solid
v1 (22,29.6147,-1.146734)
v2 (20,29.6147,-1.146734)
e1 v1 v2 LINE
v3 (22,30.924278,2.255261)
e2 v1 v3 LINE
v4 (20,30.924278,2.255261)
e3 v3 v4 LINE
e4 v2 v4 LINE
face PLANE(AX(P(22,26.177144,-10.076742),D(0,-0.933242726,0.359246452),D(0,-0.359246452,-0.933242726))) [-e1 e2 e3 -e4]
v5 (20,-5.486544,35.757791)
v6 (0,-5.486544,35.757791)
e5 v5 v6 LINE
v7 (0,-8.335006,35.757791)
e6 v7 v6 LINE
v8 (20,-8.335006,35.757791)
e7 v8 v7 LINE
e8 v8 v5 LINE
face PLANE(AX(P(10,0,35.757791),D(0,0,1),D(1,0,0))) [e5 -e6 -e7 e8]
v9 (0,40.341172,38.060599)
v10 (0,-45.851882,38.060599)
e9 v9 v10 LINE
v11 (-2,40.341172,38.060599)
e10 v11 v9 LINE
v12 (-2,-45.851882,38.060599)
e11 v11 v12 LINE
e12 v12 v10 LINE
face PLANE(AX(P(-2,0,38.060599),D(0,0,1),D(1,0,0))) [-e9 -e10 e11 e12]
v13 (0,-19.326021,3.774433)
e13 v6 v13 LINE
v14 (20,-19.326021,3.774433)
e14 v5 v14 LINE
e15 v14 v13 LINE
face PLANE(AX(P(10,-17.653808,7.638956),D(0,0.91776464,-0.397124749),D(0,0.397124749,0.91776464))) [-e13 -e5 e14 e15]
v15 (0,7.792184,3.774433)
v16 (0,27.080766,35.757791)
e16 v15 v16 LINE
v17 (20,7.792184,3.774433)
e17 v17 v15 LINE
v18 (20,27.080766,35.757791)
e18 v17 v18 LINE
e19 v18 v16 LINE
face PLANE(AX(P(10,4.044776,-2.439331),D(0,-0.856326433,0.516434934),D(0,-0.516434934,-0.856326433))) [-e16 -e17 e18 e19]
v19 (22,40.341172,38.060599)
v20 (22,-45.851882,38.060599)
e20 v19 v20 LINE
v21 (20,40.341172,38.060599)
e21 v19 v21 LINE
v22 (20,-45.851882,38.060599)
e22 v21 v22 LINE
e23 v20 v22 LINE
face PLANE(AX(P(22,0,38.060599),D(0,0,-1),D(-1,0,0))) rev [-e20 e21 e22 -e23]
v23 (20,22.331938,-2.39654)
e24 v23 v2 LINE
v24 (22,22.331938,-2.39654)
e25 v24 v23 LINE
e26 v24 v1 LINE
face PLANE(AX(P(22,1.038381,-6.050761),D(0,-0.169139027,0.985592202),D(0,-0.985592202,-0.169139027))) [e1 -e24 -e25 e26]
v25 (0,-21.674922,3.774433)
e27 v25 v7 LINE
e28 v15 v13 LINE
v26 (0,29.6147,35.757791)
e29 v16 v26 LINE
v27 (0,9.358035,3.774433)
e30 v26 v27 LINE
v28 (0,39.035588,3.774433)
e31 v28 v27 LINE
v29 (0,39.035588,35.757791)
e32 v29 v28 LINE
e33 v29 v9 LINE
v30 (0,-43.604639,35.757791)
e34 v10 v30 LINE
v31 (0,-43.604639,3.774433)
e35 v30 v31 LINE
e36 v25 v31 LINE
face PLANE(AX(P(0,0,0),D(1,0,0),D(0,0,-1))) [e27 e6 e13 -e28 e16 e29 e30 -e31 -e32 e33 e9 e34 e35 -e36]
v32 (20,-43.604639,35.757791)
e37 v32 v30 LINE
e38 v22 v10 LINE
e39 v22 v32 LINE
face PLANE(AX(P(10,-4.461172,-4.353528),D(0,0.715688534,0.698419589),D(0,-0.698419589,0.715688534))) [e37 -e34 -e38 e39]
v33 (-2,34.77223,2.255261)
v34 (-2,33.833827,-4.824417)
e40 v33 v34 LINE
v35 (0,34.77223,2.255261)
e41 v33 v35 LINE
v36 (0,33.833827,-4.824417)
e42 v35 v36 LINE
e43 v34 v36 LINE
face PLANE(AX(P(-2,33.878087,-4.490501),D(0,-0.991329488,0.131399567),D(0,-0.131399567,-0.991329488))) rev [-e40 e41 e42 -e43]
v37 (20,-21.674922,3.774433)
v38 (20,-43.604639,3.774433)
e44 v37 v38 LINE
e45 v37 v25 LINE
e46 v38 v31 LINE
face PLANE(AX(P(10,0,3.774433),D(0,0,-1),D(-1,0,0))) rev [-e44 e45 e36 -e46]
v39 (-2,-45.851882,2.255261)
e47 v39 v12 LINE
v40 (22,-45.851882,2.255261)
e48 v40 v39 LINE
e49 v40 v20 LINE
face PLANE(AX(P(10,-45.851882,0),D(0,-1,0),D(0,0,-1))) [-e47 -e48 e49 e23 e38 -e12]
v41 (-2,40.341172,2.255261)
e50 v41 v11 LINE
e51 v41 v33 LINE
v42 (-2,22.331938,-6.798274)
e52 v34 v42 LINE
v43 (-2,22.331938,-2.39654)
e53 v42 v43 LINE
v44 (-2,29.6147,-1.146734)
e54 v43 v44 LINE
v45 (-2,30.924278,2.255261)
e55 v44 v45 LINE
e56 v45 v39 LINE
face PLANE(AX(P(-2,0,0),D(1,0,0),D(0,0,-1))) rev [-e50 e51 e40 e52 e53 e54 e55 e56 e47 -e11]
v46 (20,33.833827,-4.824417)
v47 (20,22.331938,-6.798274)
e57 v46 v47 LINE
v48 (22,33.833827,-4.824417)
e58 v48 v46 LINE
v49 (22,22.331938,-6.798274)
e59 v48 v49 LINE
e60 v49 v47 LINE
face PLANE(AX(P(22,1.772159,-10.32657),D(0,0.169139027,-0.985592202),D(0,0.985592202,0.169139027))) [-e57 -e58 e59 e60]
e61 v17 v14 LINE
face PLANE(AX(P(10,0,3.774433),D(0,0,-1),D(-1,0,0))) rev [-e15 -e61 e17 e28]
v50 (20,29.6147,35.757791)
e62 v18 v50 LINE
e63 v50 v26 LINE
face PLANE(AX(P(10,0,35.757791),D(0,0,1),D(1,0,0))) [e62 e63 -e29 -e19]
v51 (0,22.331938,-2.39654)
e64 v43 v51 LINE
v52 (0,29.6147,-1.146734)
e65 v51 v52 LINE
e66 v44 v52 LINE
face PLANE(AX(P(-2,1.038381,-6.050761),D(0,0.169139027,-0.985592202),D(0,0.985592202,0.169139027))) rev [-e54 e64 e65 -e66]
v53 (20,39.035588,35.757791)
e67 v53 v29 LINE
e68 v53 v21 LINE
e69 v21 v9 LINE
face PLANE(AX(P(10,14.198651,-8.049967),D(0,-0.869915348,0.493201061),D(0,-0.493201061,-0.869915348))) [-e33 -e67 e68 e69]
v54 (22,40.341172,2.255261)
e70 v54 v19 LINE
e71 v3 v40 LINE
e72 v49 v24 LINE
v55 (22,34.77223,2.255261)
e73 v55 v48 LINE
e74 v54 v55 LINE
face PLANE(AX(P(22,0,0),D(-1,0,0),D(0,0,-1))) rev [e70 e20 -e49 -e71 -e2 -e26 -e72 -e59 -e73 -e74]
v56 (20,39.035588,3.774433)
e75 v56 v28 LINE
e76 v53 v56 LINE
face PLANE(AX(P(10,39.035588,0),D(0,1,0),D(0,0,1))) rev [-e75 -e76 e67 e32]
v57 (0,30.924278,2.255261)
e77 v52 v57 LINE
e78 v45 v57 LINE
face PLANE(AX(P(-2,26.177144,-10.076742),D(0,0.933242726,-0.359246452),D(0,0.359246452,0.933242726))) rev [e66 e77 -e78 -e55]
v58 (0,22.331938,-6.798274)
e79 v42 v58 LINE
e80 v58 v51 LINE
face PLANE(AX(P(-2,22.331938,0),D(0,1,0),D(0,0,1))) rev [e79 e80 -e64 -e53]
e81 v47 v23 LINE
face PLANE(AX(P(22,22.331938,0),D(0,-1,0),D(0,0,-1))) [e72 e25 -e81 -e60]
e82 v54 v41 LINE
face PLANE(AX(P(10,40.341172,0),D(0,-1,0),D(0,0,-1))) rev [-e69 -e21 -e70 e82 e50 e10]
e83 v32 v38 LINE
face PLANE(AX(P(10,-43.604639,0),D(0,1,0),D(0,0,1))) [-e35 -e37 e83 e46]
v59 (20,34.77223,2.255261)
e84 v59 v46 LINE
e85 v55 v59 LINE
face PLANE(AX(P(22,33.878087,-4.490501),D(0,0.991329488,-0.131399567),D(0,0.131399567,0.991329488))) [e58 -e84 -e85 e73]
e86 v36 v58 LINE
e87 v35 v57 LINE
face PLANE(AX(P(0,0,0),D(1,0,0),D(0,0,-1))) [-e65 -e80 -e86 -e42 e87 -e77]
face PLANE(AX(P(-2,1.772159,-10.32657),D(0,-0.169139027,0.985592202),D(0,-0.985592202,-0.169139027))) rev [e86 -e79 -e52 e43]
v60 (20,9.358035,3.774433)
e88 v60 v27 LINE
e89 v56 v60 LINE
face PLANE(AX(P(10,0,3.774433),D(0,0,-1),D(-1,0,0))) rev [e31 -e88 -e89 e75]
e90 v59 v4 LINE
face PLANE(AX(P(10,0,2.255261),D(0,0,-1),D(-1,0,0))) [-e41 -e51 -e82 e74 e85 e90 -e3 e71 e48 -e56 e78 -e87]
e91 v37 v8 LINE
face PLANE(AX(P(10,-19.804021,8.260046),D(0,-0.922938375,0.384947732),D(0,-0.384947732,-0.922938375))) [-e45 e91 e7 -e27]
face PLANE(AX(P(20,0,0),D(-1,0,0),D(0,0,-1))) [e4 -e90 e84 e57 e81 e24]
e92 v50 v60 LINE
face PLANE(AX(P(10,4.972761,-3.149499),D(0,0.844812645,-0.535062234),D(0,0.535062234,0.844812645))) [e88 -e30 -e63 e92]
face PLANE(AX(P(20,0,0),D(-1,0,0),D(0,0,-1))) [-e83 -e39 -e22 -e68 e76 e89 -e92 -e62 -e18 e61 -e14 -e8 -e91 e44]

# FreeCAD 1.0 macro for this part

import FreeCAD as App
import Part
import Sketcher

V = App.Vector
Q = App.Units.Quantity

doc = App.newDocument("Part")
body = doc.addObject("PartDesign::Body", "Body")

sketch1 = body.newObject("Sketcher::SketchObject", "Sketch")
sketch1.AttachmentSupport = (doc.getObject("YZ_Plane"), [""])
sketch1.MapMode = "FlatFace"
sketch1.addGeometry([
    Part.LineSegment(V(39, 3.8, 0), V(9.4, 3.8, 0)),
    Part.LineSegment(V(9.4, 3.8, 0), V(29.6, 35.8, 0)),
    Part.LineSegment(V(29.6, 35.8, 0), V(27.1, 35.8, 0)),
    Part.LineSegment(V(27.1, 35.8, 0), V(7.8, 3.8, 0)),
    Part.LineSegment(V(7.8, 3.8, 0), V(-19.3, 3.8, 0)),
    Part.LineSegment(V(-19.3, 3.8, 0), V(-5.5, 35.8, 0)),
    Part.LineSegment(V(-5.5, 35.8, 0), V(-8.3, 35.8, 0)),
    Part.LineSegment(V(-8.3, 35.8, 0), V(-21.7, 3.8, 0)),
    Part.LineSegment(V(-21.7, 3.8, 0), V(-43.6, 3.8, 0)),
    Part.LineSegment(V(-43.6, 3.8, 0), V(-43.6, 35.8, 0)),
    Part.LineSegment(V(-43.6, 35.8, 0), V(-45.9, 38.1, 0)),
    Part.LineSegment(V(-45.9, 38.1, 0), V(-45.9, 2.3, 0)),
    Part.LineSegment(V(-45.9, 2.3, 0), V(40.3, 2.3, 0)),
    Part.LineSegment(V(40.3, 2.3, 0), V(40.3, 38.1, 0)),
    Part.LineSegment(V(40.3, 38.1, 0), V(39, 35.8, 0)),
    Part.LineSegment(V(39, 35.8, 0), V(39, 3.8, 0)),
], False)
sketch1.addConstraint([
    Sketcher.Constraint("Coincident", 0, 2, 1, 1),
    Sketcher.Constraint("Coincident", 1, 2, 2, 1),
    Sketcher.Constraint("Coincident", 2, 2, 3, 1),
    Sketcher.Constraint("Coincident", 3, 2, 4, 1),
    Sketcher.Constraint("Coincident", 4, 2, 5, 1),
    Sketcher.Constraint("Coincident", 5, 2, 6, 1),
    Sketcher.Constraint("Coincident", 6, 2, 7, 1),
    Sketcher.Constraint("Coincident", 7, 2, 8, 1),
    Sketcher.Constraint("Coincident", 8, 2, 9, 1),
    Sketcher.Constraint("Coincident", 9, 2, 10, 1),
    Sketcher.Constraint("Coincident", 10, 2, 11, 1),
    Sketcher.Constraint("Coincident", 11, 2, 12, 1),
    Sketcher.Constraint("Coincident", 12, 2, 13, 1),
    Sketcher.Constraint("Coincident", 13, 2, 14, 1),
    Sketcher.Constraint("Coincident", 14, 2, 15, 1),
    Sketcher.Constraint("Coincident", 15, 2, 0, 1),
    Sketcher.Constraint("Horizontal", 0),
    Sketcher.Constraint("Horizontal", 2),
    Sketcher.Constraint("Horizontal", 4),
    Sketcher.Constraint("Horizontal", 6),
    Sketcher.Constraint("Horizontal", 8),
    Sketcher.Constraint("Vertical", 9),
    Sketcher.Constraint("Vertical", 11),
    Sketcher.Constraint("Horizontal", 12),
    Sketcher.Constraint("Vertical", 13),
    Sketcher.Constraint("Vertical", 15),
    Sketcher.Constraint("Horizontal", 0, 2, 3, 2),
    Sketcher.Constraint("Horizontal", 2, 2, 5, 2),
    Sketcher.Constraint("Horizontal", 4, 2, 7, 2),
    Sketcher.Constraint("Horizontal", 6, 2, 9, 2),
    Sketcher.Constraint("Horizontal", 10, 2, 13, 2),
    Sketcher.Constraint("Horizontal", 9, 2, 14, 2),
    Sketcher.Constraint("DistanceX", -1, 1, 1, 2, Q("29.6147 mm")),
    Sketcher.Constraint("DistanceY", -1, 1, 10, 2, Q("38.060599 mm")),
    Sketcher.Constraint("DistanceX", 7, 2, 4, 2, Q("2.348902 mm")),
    Sketcher.Constraint("Distance", 1, Q("37.858521 mm")),
    Sketcher.Constraint("Distance", 7, Q("34.653838 mm")),
    Sketcher.Constraint("Distance", 10, Q("3.217612 mm")),
    Sketcher.Constraint("DistanceX", 0, 2, 0, 1, Q("29.677553 mm")),
    Sketcher.Constraint("DistanceX", 2, 2, 2, 1, Q("2.533934 mm")),
    Sketcher.Constraint("DistanceX", 4, 2, 4, 1, Q("27.118205 mm")),
    Sketcher.Constraint("DistanceX", 6, 2, 6, 1, Q("2.848462 mm")),
    Sketcher.Constraint("DistanceX", 8, 2, 8, 1, Q("21.929717 mm")),
    Sketcher.Constraint("DistanceX", 12, 1, 12, 2, Q("86.193054 mm")),
    Sketcher.Constraint("DistanceY", 9, 1, 9, 2, Q("31.983357 mm")),
    Sketcher.Constraint("DistanceY", 11, 2, 11, 1, Q("35.805338 mm")),
    Sketcher.Constraint("DistanceY", -1, 1, 1, 2, Q("35.757791 mm")),
    Sketcher.Constraint("DistanceX", 4, 2, -1, 1, Q("19.326021 mm")),
])
pad1 = body.newObject("PartDesign::Pad", "Pad")
pad1.Profile = sketch1
pad1.Length = 10

sketch2 = body.newObject("Sketcher::SketchObject", "Sketch001")
sketch2.AttachmentSupport = (doc.getObject("YZ_Plane"), [""])
sketch2.MapMode = "FlatFace"
sketch2.addGeometry([
    Part.LineSegment(V(-45.9, 38.1, 0), V(-45.9, 2.3, 0)),
    Part.LineSegment(V(-45.9, 2.3, 0), V(30.9, 2.3, 0)),
    Part.LineSegment(V(30.9, 2.3, 0), V(29.6, -1.1, 0)),
    Part.LineSegment(V(29.6, -1.1, 0), V(22.3, -2.4, 0)),
    Part.LineSegment(V(22.3, -2.4, 0), V(22.3, -6.8, 0)),
    Part.LineSegment(V(22.3, -6.8, 0), V(33.8, -4.8, 0)),
    Part.LineSegment(V(33.8, -4.8, 0), V(34.8, 2.3, 0)),
    Part.LineSegment(V(34.8, 2.3, 0), V(40.3, 2.3, 0)),
    Part.LineSegment(V(40.3, 2.3, 0), V(40.3, 38.1, 0)),
    Part.LineSegment(V(40.3, 38.1, 0), V(-45.9, 38.1, 0)),
], False)
sketch2.addConstraint([
    Sketcher.Constraint("Coincident", 0, 2, 1, 1),
    Sketcher.Constraint("Coincident", 1, 2, 2, 1),
    Sketcher.Constraint("Coincident", 2, 2, 3, 1),
    Sketcher.Constraint("Coincident", 3, 2, 4, 1),
    Sketcher.Constraint("Coincident", 4, 2, 5, 1),
    Sketcher.Constraint("Coincident", 5, 2, 6, 1),
    Sketcher.Constraint("Coincident", 6, 2, 7, 1),
    Sketcher.Constraint("Coincident", 7, 2, 8, 1),
    Sketcher.Constraint("Coincident", 8, 2, 9, 1),
    Sketcher.Constraint("Coincident", 9, 2, 0, 1),
    Sketcher.Constraint("Vertical", 0),
    Sketcher.Constraint("Horizontal", 1),
    Sketcher.Constraint("Vertical", 4),
    Sketcher.Constraint("Horizontal", 7),
    Sketcher.Constraint("Vertical", 8),
    Sketcher.Constraint("Horizontal", 9),
    Sketcher.Constraint("Parallel", 3, 5),
    Sketcher.Constraint("Horizontal", 1, 2, 6, 2),
    Sketcher.Constraint("Distance", 6, Q("7.141599 mm")),
    Sketcher.Constraint("DistanceX", 1, 1, 1, 2, Q("76.776161 mm")),
    Sketcher.Constraint("DistanceX", 7, 1, 7, 2, Q("5.568942 mm")),
    Sketcher.Constraint("DistanceX", -1, 1, 2, 2, Q("29.6147 mm")),
    Sketcher.Constraint("DistanceY", -1, 1, 8, 2, Q("38.060599 mm")),
    Sketcher.Constraint("DistanceY", 3, 2, 1, 2, Q("4.651801 mm")),
    Sketcher.Constraint("Distance", 2, Q("3.645348 mm")),
    Sketcher.Constraint("Distance", 5, Q("11.670029 mm")),
    Sketcher.Constraint("DistanceX", 9, 2, 9, 1, Q("86.193054 mm")),
    Sketcher.Constraint("DistanceY", 0, 2, 0, 1, Q("35.805338 mm")),
    Sketcher.Constraint("DistanceY", 4, 2, 4, 1, Q("4.401734 mm")),
    Sketcher.Constraint("DistanceX", -1, 1, 1, 2, Q("30.924278 mm")),
])
pad2 = body.newObject("PartDesign::Pad", "Pad001")
pad2.Profile = sketch2
pad2.Length = 2
pad2.Reversed = True
doc.recompute()

datumplane = body.newObject("PartDesign::Plane", "DatumPlane")
datumplane.AttachmentSupport = (doc.getObject("YZ_Plane"), [""])
datumplane.MapMode = "FlatFace"
datumplane.AttachmentOffset = App.Placement(V(0, 0, 10), App.Rotation())
mirrored = body.newObject("PartDesign::Mirrored", "Mirrored")
mirrored.Originals = [pad1, pad2]
mirrored.MirrorPlane = (datumplane, [""])
body.Tip = mirrored

doc.recompute()
